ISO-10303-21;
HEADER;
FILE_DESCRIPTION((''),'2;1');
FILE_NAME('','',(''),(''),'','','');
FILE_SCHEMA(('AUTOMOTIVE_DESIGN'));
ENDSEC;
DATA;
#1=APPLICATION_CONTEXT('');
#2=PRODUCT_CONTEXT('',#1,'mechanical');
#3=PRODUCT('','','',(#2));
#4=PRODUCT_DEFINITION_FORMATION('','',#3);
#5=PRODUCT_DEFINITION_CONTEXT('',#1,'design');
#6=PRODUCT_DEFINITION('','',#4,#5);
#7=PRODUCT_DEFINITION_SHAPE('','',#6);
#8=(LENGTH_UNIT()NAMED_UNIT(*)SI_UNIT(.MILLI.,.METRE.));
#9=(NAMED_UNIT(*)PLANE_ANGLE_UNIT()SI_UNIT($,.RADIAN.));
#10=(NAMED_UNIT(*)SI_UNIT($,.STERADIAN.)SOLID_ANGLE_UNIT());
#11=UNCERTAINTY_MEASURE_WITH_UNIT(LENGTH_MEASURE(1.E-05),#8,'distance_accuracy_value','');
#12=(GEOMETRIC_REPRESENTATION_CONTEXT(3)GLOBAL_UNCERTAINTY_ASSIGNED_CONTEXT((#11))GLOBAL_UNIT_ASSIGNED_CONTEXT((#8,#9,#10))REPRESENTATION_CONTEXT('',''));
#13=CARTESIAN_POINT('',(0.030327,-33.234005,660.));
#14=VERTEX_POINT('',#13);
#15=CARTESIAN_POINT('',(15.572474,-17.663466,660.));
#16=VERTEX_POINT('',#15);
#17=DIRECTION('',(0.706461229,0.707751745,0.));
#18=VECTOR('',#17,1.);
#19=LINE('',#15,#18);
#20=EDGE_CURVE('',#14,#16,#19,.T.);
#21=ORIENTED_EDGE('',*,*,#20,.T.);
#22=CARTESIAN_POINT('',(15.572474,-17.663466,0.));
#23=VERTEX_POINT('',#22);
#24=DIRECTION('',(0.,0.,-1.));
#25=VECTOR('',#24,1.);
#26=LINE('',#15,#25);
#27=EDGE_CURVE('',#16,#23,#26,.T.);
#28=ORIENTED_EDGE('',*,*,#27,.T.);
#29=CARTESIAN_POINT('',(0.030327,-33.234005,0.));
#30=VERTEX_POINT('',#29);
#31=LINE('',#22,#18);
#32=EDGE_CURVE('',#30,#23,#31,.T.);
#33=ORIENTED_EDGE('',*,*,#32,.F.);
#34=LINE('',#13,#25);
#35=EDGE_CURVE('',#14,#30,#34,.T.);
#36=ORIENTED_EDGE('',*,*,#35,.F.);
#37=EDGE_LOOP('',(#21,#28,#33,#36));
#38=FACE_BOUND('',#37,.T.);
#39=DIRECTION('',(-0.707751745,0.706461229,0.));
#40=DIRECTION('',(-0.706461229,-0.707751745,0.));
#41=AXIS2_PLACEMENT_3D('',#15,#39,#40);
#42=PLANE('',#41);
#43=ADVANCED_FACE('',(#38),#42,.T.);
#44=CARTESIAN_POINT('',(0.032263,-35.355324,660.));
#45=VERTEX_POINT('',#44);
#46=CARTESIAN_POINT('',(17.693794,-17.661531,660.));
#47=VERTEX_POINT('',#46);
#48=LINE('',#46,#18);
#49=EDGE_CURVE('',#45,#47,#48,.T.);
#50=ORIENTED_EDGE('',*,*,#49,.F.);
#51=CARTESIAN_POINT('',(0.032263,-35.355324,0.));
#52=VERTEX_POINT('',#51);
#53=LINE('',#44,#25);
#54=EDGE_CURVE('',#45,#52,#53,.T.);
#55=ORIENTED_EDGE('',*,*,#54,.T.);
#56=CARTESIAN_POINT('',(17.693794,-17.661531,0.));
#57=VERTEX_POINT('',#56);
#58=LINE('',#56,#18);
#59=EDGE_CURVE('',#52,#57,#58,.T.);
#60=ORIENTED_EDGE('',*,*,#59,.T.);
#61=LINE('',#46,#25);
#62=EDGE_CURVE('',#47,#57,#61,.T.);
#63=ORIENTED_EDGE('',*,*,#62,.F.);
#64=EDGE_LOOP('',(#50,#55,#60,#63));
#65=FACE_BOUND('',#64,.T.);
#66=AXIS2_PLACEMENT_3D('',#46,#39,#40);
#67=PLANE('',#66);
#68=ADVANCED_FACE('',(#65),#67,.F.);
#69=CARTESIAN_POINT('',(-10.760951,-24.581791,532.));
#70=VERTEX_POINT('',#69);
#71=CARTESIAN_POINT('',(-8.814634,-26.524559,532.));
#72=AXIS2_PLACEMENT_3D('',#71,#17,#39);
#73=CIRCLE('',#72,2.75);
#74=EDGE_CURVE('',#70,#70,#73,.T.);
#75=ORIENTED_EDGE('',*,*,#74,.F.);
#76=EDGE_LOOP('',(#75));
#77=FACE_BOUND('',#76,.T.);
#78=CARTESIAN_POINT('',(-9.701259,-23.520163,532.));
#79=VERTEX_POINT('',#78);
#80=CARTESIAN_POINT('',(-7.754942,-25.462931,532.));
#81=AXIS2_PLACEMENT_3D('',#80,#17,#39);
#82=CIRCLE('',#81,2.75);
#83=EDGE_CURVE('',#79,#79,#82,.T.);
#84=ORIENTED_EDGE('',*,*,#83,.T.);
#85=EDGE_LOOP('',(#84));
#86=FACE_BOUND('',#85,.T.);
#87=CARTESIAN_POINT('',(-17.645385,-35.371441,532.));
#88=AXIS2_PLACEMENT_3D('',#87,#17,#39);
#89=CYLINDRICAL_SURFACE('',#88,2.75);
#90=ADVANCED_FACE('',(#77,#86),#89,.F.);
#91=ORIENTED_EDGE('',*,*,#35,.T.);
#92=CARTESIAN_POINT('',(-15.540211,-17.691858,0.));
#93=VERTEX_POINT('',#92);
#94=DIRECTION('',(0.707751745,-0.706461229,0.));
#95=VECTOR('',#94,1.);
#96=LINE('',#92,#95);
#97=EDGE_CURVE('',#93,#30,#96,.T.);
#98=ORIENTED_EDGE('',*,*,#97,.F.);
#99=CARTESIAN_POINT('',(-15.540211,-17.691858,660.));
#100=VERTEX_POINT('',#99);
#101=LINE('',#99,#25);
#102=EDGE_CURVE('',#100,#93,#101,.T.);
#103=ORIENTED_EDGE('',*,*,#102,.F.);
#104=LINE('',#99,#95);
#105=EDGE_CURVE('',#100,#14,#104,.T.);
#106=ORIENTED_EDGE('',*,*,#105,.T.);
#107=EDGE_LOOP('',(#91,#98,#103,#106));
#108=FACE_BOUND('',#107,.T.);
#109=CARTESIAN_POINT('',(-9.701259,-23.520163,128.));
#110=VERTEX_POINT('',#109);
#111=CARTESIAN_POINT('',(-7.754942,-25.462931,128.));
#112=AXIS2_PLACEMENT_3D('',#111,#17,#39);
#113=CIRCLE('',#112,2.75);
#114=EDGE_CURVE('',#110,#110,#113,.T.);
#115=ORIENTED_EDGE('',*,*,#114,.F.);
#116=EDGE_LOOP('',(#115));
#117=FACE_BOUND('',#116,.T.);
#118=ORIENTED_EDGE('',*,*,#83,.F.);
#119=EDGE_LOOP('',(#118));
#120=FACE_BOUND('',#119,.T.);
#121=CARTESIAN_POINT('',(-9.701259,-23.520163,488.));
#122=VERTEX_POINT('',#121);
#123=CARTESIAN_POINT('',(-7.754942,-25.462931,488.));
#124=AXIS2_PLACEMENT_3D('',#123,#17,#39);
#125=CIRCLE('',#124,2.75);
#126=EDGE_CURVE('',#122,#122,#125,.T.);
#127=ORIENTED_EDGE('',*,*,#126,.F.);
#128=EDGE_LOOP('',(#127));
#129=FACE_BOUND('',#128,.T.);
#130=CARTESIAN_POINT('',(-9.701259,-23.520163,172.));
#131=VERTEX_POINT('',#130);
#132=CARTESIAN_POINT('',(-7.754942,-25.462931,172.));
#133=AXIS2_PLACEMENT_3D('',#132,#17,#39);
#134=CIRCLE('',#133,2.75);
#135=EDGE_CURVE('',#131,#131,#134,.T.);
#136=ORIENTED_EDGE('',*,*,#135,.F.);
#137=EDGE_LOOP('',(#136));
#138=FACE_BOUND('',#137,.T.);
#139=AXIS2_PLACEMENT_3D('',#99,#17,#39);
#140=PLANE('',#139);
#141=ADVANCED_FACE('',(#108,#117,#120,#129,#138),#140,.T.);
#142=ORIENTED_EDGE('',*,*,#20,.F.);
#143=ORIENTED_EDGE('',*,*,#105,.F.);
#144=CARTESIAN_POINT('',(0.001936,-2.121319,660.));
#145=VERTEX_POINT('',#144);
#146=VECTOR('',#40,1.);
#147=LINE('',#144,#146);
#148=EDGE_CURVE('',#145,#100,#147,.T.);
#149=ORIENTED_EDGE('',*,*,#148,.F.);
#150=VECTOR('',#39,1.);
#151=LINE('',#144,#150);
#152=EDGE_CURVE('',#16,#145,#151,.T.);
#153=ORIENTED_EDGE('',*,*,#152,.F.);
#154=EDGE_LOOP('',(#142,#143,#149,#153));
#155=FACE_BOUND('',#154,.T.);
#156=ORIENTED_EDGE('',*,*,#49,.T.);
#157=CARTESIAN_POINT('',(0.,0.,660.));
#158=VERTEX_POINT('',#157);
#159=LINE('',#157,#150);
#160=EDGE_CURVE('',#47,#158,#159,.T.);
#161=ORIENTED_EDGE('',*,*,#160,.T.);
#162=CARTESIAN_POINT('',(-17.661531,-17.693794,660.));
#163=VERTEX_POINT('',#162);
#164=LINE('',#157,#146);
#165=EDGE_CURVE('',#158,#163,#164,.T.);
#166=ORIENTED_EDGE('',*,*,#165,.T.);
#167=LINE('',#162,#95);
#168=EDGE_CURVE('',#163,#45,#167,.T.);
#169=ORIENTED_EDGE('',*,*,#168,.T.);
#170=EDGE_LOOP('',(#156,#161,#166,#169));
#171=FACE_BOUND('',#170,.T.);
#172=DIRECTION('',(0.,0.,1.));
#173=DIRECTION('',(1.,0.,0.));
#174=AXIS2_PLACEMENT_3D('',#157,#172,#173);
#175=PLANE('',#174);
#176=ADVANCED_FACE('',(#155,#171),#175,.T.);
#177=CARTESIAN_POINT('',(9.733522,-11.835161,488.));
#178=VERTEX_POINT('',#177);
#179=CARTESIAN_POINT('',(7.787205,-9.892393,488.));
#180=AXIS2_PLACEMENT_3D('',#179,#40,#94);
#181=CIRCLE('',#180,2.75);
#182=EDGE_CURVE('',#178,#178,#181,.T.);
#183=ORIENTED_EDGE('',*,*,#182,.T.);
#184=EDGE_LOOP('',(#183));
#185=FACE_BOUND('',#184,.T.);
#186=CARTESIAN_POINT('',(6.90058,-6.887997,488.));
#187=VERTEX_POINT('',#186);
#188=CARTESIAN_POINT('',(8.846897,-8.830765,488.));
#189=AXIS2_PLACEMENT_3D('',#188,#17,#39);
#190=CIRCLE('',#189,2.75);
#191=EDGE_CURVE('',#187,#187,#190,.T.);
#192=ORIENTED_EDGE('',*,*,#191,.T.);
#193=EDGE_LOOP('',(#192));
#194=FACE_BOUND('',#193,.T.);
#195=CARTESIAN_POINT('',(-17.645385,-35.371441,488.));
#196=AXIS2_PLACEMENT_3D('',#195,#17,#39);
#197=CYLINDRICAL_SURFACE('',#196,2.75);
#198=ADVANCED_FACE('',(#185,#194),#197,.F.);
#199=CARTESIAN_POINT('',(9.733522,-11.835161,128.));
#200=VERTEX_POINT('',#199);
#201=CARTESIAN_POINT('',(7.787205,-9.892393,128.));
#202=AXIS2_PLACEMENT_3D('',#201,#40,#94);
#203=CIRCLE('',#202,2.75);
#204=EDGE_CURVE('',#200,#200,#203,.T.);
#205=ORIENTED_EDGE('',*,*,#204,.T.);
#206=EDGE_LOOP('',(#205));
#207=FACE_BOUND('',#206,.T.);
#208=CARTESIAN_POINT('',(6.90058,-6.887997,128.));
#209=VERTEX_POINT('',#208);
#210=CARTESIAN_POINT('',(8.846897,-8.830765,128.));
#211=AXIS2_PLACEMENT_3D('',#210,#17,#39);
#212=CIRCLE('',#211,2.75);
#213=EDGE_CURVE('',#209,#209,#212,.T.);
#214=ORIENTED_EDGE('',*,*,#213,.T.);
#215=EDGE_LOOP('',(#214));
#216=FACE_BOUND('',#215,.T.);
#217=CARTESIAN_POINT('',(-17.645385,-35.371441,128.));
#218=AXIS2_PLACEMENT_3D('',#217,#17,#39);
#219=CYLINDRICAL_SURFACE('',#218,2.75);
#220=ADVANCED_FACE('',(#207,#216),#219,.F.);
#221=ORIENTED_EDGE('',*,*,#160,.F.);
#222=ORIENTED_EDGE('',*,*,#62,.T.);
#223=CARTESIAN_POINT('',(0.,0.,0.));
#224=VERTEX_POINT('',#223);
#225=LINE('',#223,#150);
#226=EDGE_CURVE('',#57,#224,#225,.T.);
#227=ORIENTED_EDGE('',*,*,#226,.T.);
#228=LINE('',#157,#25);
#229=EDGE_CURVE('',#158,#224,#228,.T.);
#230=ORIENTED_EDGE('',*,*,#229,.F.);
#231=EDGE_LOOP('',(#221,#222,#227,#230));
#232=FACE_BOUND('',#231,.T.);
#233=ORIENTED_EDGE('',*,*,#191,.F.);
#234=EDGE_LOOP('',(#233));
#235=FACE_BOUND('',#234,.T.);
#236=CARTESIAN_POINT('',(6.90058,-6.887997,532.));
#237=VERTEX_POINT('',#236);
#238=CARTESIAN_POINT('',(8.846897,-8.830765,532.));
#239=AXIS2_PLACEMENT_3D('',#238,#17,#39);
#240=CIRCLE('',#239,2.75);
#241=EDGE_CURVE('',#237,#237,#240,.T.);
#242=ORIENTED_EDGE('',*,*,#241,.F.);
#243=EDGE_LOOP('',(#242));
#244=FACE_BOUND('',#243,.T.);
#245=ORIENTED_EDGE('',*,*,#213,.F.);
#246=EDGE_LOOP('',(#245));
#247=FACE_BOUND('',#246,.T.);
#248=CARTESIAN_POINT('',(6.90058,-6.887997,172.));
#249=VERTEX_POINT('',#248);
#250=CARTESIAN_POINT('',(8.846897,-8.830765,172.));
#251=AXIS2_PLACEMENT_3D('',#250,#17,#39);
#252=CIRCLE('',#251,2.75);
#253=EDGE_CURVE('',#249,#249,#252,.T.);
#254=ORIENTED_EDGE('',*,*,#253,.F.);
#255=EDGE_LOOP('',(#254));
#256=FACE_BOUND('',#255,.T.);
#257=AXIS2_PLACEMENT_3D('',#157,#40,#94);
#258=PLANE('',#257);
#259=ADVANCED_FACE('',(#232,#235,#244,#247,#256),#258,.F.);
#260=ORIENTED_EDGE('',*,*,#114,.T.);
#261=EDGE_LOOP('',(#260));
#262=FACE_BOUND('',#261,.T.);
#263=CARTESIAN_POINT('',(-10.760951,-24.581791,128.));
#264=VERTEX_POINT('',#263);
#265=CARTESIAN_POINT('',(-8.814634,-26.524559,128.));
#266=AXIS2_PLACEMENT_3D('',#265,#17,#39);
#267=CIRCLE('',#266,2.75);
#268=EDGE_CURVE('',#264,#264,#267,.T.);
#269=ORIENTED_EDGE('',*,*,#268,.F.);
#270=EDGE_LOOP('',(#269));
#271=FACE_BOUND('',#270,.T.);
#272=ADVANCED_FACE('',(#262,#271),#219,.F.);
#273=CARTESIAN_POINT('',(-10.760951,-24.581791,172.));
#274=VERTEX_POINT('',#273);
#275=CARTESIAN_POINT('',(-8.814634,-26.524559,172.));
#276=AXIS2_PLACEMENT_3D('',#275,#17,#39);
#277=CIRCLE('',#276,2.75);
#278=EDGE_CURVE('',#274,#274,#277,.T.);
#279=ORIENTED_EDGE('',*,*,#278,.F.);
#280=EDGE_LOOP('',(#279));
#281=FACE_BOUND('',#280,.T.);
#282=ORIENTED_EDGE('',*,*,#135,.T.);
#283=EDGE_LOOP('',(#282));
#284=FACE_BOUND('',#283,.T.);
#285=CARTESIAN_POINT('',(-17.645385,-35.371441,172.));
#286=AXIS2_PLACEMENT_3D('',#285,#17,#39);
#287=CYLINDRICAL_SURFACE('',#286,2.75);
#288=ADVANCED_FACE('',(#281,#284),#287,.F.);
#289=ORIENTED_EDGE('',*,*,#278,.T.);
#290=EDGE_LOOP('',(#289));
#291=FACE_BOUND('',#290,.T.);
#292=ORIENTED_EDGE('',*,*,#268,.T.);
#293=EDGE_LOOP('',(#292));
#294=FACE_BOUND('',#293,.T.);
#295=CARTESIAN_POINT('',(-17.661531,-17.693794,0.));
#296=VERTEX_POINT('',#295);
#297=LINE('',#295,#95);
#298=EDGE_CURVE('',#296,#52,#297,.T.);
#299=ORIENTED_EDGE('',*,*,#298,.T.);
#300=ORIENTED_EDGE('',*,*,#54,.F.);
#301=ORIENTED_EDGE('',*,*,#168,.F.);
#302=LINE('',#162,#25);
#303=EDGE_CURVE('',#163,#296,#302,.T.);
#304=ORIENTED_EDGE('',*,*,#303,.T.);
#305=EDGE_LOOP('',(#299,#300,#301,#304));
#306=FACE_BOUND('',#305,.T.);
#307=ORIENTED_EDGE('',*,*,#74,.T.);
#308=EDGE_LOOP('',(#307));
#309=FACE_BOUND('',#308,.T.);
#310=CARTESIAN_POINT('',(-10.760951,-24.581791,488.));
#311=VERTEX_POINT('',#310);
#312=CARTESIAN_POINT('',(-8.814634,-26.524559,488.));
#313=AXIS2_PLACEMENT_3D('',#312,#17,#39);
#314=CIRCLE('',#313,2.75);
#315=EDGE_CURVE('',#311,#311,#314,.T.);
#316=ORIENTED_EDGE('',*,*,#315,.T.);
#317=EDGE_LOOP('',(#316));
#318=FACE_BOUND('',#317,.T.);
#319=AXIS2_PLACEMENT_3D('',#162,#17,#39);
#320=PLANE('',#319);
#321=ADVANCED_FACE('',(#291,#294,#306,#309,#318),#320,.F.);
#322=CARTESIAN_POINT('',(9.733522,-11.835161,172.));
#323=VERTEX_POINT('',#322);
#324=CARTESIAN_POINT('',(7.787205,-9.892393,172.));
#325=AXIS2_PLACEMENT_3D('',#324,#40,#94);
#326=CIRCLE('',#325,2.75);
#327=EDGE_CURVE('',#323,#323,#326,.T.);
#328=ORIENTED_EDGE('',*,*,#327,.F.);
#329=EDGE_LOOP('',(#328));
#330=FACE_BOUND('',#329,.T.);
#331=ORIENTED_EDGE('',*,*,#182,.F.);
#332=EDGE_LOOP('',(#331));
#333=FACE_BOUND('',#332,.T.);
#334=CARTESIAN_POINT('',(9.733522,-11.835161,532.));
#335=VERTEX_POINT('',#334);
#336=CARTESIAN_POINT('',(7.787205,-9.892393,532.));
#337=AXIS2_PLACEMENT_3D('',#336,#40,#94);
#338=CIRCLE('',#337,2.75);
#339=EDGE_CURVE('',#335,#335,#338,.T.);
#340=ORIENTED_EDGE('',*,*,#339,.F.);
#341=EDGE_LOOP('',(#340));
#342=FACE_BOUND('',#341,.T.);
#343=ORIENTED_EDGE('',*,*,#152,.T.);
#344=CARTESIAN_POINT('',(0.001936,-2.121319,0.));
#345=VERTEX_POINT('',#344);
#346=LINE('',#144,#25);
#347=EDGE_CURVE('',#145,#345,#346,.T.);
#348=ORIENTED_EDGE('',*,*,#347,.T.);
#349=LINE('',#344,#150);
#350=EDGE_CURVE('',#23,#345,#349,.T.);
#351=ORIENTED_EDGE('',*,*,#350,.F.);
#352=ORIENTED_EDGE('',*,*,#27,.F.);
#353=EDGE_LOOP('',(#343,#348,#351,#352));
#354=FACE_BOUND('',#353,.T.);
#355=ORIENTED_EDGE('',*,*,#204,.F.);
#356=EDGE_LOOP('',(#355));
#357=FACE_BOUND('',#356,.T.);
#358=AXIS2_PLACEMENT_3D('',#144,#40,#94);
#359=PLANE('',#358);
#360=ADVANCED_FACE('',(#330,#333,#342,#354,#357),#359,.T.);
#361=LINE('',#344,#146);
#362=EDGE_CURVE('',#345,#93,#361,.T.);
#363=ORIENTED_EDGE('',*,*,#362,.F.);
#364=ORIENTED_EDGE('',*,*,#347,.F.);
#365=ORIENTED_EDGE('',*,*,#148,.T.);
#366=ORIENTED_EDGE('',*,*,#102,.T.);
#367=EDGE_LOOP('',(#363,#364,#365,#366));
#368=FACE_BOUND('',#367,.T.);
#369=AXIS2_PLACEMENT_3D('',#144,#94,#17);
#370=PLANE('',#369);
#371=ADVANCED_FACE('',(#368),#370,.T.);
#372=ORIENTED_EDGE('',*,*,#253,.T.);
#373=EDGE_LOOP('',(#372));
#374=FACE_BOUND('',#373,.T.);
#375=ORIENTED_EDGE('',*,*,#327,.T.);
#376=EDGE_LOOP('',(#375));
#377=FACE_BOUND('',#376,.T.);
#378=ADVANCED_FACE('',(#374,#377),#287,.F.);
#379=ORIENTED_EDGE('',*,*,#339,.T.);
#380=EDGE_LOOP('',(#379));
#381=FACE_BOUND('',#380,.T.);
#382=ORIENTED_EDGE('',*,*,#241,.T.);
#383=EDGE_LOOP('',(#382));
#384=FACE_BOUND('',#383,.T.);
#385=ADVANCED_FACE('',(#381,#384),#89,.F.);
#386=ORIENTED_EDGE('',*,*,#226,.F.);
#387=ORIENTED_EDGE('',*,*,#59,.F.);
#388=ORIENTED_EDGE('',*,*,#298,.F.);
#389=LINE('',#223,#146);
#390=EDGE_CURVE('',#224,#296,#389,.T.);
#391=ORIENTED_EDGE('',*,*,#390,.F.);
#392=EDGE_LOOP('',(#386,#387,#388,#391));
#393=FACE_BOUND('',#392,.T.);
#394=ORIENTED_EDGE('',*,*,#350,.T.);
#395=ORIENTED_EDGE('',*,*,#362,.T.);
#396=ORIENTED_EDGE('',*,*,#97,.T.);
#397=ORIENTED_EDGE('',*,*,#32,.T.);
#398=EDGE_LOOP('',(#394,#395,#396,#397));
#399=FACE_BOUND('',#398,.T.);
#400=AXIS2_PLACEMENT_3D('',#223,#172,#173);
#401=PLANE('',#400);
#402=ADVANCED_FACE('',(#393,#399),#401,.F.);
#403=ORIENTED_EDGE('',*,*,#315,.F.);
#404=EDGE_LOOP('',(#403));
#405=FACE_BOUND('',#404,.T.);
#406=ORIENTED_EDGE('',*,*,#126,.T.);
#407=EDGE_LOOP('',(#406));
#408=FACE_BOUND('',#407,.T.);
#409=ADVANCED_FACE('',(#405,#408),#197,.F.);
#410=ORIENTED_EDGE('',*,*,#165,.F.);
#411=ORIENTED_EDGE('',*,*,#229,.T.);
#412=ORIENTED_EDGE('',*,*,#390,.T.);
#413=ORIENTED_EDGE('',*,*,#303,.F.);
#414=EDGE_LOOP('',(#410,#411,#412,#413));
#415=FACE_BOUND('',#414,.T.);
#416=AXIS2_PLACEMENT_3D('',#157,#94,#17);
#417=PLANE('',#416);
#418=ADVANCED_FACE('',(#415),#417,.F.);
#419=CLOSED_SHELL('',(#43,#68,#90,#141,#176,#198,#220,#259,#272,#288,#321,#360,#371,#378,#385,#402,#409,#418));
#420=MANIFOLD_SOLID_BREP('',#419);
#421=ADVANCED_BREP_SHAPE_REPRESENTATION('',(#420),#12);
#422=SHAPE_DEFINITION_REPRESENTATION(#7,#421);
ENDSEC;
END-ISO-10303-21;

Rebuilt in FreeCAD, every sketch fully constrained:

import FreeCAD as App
import Part
import Sketcher

doc = App.newDocument("Part")
body = doc.addObject("PartDesign::Body", "Body")

# Sketch on XY plane
sketch1 = doc.addObject("Sketcher::SketchObject", "Sketch")
body.addObject(sketch1)
sketch1.AttachmentSupport = (doc.XY_Plane, [""])
sketch1.MapMode = "FlatFace"
sketch1.addGeometry(Part.LineSegment(App.Vector(18, -18, 0), App.Vector(0, 0, 0)), False)
sketch1.addGeometry(Part.LineSegment(App.Vector(0, 0, 0), App.Vector(-18, -18, 0)), False)
sketch1.addGeometry(Part.LineSegment(App.Vector(-18, -18, 0), App.Vector(0, -35, 0)), False)
sketch1.addGeometry(Part.LineSegment(App.Vector(0, -35, 0), App.Vector(18, -18, 0)), False)
sketch1.addGeometry(Part.LineSegment(App.Vector(0, -2, 0), App.Vector(16, -18, 0)), False)
sketch1.addGeometry(Part.LineSegment(App.Vector(16, -18, 0), App.Vector(0, -33, 0)), False)
sketch1.addGeometry(Part.LineSegment(App.Vector(0, -33, 0), App.Vector(-16, -18, 0)), False)
sketch1.addGeometry(Part.LineSegment(App.Vector(-16, -18, 0), App.Vector(0, -2, 0)), False)
sketch1.addConstraint(Sketcher.Constraint("Coincident", 0, 2, 1, 1))
sketch1.addConstraint(Sketcher.Constraint("Coincident", 1, 2, 2, 1))
sketch1.addConstraint(Sketcher.Constraint("Coincident", 2, 2, 3, 1))
sketch1.addConstraint(Sketcher.Constraint("Coincident", 3, 2, 0, 1))
sketch1.addConstraint(Sketcher.Constraint("Coincident", 4, 2, 5, 1))
sketch1.addConstraint(Sketcher.Constraint("Coincident", 5, 2, 6, 1))
sketch1.addConstraint(Sketcher.Constraint("Coincident", 6, 2, 7, 1))
sketch1.addConstraint(Sketcher.Constraint("Coincident", 7, 2, 4, 1))
sketch1.addConstraint(Sketcher.Constraint("Coincident", 0, 2, -1, 1))
sketch1.addConstraint(Sketcher.Constraint("Perpendicular", 0, 1))
sketch1.addConstraint(Sketcher.Constraint("Perpendicular", 1, 2))
sketch1.addConstraint(Sketcher.Constraint("Perpendicular", 2, 3))
sketch1.addConstraint(Sketcher.Constraint("Perpendicular", 3, 4))
sketch1.addConstraint(Sketcher.Constraint("Perpendicular", 4, 5))
sketch1.addConstraint(Sketcher.Constraint("Perpendicular", 5, 6))
sketch1.addConstraint(Sketcher.Constraint("Perpendicular", 6, 7))
sketch1.addConstraint(Sketcher.Constraint("Equal", 0, 1))
sketch1.addConstraint(Sketcher.Constraint("Equal", 4, 5))
sketch1.addConstraint(Sketcher.Constraint("Distance", 0, 25.0))
sketch1.addConstraint(Sketcher.Constraint("Distance", 4, 22.0))
sketch1.addConstraint(Sketcher.Constraint("DistanceX", 1, 2, -1, 1, 17.661531))
sketch1.addConstraint(Sketcher.Constraint("DistanceX", 6, 2, -1, 1, 15.540211))
sketch1.addConstraint(Sketcher.Constraint("DistanceY", 7, 2, -1, 1, 2.121319))
pad1 = doc.addObject("PartDesign::Pad", "Pad")
body.addObject(pad1)
pad1.Profile = sketch1
pad1.Length = 660

# Sketch on an angled plane
sketch2 = doc.addObject("Sketcher::SketchObject", "Sketch001")
body.addObject(sketch2)
sketch2.Placement = App.Placement(App.Vector(0, 0, 0), App.Rotation(App.Vector(0.707751745, -0.706461229, 0), App.Vector(0, 0, -1.000000001), App.Vector(0.706461229, 0.707751745, 0), "ZXY"))
sketch2.addGeometry(Part.Circle(App.Vector(12.5, -488, 0), App.Vector(0, 0, 1), 2.8), False)
sketch2.addGeometry(Part.Circle(App.Vector(12.5, -532, 0), App.Vector(0, 0, 1), 2.8), False)
sketch2.addGeometry(Part.Circle(App.Vector(12.5, -128, 0), App.Vector(0, 0, 1), 2.8), False)
sketch2.addGeometry(Part.Circle(App.Vector(12.5, -172, 0), App.Vector(0, 0, 1), 2.8), False)
sketch2.addConstraint(Sketcher.Constraint("Equal", 0, 1))
sketch2.addConstraint(Sketcher.Constraint("Equal", 1, 2))
sketch2.addConstraint(Sketcher.Constraint("Equal", 2, 3))
sketch2.addConstraint(Sketcher.Constraint("Vertical", 0, 3, 1, 3))
sketch2.addConstraint(Sketcher.Constraint("Vertical", 1, 3, 2, 3))
sketch2.addConstraint(Sketcher.Constraint("Vertical", 2, 3, 3, 3))
sketch2.addConstraint(Sketcher.Constraint("Diameter", 0, 5.5))
sketch2.addConstraint(Sketcher.Constraint("DistanceY", 0, 3, -1, 1, 488.000001))
sketch2.addConstraint(Sketcher.Constraint("DistanceY", 1, 3, -1, 1, 532.000001))
sketch2.addConstraint(Sketcher.Constraint("DistanceY", 2, 3, -1, 1, 128.0))
sketch2.addConstraint(Sketcher.Constraint("DistanceY", 3, 3, -1, 1, 172.0))
sketch2.addConstraint(Sketcher.Constraint("DistanceX", -1, 1, 0, 3, 12.5))
pocket1 = doc.addObject("PartDesign::Pocket", "Pocket")
body.addObject(pocket1)
pocket1.Profile = sketch2
pocket1.Type = "ThroughAll"

doc.recompute()
